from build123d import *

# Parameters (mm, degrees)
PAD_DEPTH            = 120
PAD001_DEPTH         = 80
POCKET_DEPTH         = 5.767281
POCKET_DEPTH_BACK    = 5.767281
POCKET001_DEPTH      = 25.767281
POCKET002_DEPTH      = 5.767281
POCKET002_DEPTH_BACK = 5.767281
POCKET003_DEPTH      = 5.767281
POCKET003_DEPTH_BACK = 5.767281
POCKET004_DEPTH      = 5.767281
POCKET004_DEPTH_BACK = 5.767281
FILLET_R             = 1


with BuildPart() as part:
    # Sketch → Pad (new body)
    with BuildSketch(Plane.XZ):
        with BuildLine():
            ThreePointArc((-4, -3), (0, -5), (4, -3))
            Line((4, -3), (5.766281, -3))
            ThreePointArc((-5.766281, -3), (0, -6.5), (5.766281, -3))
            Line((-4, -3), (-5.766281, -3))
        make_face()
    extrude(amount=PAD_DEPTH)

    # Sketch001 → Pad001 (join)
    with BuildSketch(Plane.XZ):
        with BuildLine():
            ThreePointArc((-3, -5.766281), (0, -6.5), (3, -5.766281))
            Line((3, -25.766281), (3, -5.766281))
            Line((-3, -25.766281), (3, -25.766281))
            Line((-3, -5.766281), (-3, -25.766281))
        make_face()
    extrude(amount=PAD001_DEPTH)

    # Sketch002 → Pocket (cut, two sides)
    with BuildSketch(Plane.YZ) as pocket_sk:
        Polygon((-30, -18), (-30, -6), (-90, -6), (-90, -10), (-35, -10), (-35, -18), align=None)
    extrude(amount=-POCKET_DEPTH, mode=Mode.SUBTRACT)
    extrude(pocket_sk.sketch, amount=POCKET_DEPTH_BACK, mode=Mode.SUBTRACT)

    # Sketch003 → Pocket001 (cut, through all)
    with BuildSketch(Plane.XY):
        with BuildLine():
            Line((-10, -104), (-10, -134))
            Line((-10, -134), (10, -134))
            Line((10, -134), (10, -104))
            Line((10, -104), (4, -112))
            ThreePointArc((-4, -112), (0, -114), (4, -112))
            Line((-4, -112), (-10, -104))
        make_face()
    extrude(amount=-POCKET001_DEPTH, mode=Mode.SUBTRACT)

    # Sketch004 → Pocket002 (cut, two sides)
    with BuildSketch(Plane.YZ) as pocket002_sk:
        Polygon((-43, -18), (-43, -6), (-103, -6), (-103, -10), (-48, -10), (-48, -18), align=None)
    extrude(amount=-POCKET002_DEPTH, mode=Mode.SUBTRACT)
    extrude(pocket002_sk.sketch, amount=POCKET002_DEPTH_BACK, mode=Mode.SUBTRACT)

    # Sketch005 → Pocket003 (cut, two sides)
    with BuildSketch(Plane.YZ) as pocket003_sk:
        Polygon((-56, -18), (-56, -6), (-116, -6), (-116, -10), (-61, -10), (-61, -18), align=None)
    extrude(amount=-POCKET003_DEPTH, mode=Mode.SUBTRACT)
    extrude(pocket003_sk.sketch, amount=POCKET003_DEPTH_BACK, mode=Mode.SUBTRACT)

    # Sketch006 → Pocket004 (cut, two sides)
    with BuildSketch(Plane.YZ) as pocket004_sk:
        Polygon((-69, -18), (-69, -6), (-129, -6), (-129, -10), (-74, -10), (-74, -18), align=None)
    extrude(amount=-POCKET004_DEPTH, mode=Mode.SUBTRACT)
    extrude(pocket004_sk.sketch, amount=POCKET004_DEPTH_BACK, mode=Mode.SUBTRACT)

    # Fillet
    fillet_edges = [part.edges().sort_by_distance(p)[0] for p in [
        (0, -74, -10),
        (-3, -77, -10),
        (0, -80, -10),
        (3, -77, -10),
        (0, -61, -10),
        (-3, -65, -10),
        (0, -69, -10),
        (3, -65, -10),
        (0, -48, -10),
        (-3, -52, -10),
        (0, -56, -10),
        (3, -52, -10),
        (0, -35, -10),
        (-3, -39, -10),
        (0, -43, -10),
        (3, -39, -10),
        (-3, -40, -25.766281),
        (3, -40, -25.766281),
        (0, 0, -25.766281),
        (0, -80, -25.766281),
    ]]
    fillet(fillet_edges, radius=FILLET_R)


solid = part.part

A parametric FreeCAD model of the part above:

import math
import FreeCAD as App
import Part
import Sketcher

V = App.Vector


def edges_at(feature, points):
    """Names of the edges that pass closest to the given points."""
    edges = feature.Shape.Edges
    near = lambda p: min(range(len(edges)), key=lambda i: edges[i].distToShape(Part.Vertex(*p))[0])
    return sorted({f"Edge{near(p) + 1}" for p in points})


def add_polygon(sketch, points):
    """Adds a closed chain of lines whose ends are joined by coincident constraints."""
    first, n = sketch.GeometryCount, len(points)
    for a, b in zip(points, points[1:] + points[:1]):
        sketch.addGeometry(Part.LineSegment(App.Vector(*a, 0), App.Vector(*b, 0)), False)
    for i in range(n):
        sketch.addConstraint(Sketcher.Constraint("Coincident", first + i, 2, first + (i + 1) % n, 1))

doc = App.newDocument("Part")
params = doc.addObject("Spreadsheet::Sheet", "Params")
for row, (alias, value) in enumerate([
    ("sketch1_radius", "5 mm"),
    ("sketch1_radius2", "6.5 mm"),
    ("pad1_length", "120 mm"),
    ("sketch2_width", "6 mm"),
    ("sketch2_height", "20 mm"),
    ("pad2_length", "80 mm"),
    ("sketch3_width", "60 mm"),
    ("sketch3_width2", "55 mm"),
    ("sketch3_height", "12 mm"),
    ("sketch3_height2", "4 mm"),
    ("sketch4_radius", "5 mm"),
    ("sketch4_width", "20 mm"),
    ("sketch4_height", "30 mm"),
    ("sketch4_length", "10 mm"),
    ("sketch5_width", "60 mm"),
    ("sketch5_width2", "55 mm"),
    ("sketch5_height", "12 mm"),
    ("sketch5_height2", "4 mm"),
    ("sketch6_width", "60 mm"),
    ("sketch6_width2", "55 mm"),
    ("sketch6_height", "12 mm"),
    ("sketch6_height2", "4 mm"),
    ("sketch7_width", "60 mm"),
    ("sketch7_width2", "55 mm"),
    ("sketch7_height", "12 mm"),
    ("sketch7_height2", "4 mm"),
    ("fillet_radius", "1 mm"),
], start=1):
    params.set(f"A{row}", alias)
    params.set(f"B{row}", "=" + value)
    params.setAlias(f"B{row}", alias)

body = doc.addObject("PartDesign::Body", "Body")

# Sketch on XZ plane
sketch1 = body.newObject("Sketcher::SketchObject", "Sketch")
sketch1.AttachmentSupport = (doc.getObject("XZ_Plane"), [""])
sketch1.MapMode = "FlatFace"
sketch1.addGeometry([
    Part.ArcOfCircle(Part.Circle(V(0, 0, 0), V(0, 0, 1), 5), math.radians(-143), math.radians(-37)),
    Part.LineSegment(V(-4, -3, 0), V(-5.8, -3, 0)),
    Part.ArcOfCircle(Part.Circle(V(0, 0, 0), V(0, 0, 1), 6.5), math.radians(-153), math.radians(-27)),
    Part.LineSegment(V(5.8, -3, 0), V(4, -3, 0)),
], False)
sketch1.addConstraint([
    Sketcher.Constraint("Coincident", 0, 1, 1, 1),
    Sketcher.Constraint("Coincident", 1, 2, 2, 1),
    Sketcher.Constraint("Coincident", 2, 2, 3, 1),
    Sketcher.Constraint("Coincident", 3, 2, 0, 2),
    Sketcher.Constraint("Horizontal", 1),
    Sketcher.Constraint("Horizontal", 3),
    Sketcher.Constraint("Coincident", 0, 3, -1, 1),
    Sketcher.Constraint("Coincident", 2, 3, -1, 1),
    Sketcher.Constraint("Horizontal", 1, 2, 2, 2),
    Sketcher.Constraint("Radius", 0, 5.0),
    Sketcher.Constraint("Radius", 2, 6.5),
    Sketcher.Constraint("DistanceX", 0, 1, -1, 1, 4.0),
])
sketch1.setExpression("Constraints[9]", "Params.sketch1_radius")
sketch1.setExpression("Constraints[10]", "Params.sketch1_radius2")
pad1 = body.newObject("PartDesign::Pad", "Pad")
pad1.Profile = sketch1
pad1.setExpression("Length", "Params.pad1_length")

# Sketch on XZ plane
sketch2 = body.newObject("Sketcher::SketchObject", "Sketch001")
sketch2.AttachmentSupport = (doc.getObject("XZ_Plane"), [""])
sketch2.MapMode = "FlatFace"
sketch2.addGeometry([
    Part.ArcOfCircle(Part.Circle(V(0, 0, 0), V(0, 0, 1), 6), math.radians(-117), math.radians(-63)),
    Part.LineSegment(V(-3, -6, 0), V(-3, -26, 0)),
    Part.LineSegment(V(-3, -26, 0), V(3, -26, 0)),
    Part.LineSegment(V(3, -26, 0), V(3, -6, 0)),
], False)
sketch2.addConstraint([
    Sketcher.Constraint("Coincident", 0, 1, 1, 1),
    Sketcher.Constraint("Coincident", 1, 2, 2, 1),
    Sketcher.Constraint("Coincident", 2, 2, 3, 1),
    Sketcher.Constraint("Coincident", 3, 2, 0, 2),
    Sketcher.Constraint("Vertical", 1),
    Sketcher.Constraint("Horizontal", 2),
    Sketcher.Constraint("Vertical", 3),
    Sketcher.Constraint("Coincident", 0, 3, -1, 1),
    Sketcher.Constraint("Horizontal", 0, 1, 3, 2),
    Sketcher.Constraint("DistanceX", 2, 1, 2, 2, 6.0),
    Sketcher.Constraint("DistanceY", 1, 2, 1, 1, 20.0),
    Sketcher.Constraint("Radius", 0, 6.499998),
])
sketch2.setExpression("Constraints[9]", "Params.sketch2_width")
sketch2.setExpression("Constraints[10]", "Params.sketch2_height")
pad2 = body.newObject("PartDesign::Pad", "Pad001")
pad2.Profile = sketch2
pad2.setExpression("Length", "Params.pad2_length")

# Sketch on YZ plane
sketch3 = body.newObject("Sketcher::SketchObject", "Sketch002")
sketch3.AttachmentSupport = (doc.getObject("YZ_Plane"), [""])
sketch3.MapMode = "FlatFace"
add_polygon(sketch3, [(-30, -18), (-30, -6), (-90, -6), (-90, -10), (-35, -10), (-35, -18)])  # lines 0-5
sketch3.addConstraint([
    Sketcher.Constraint("Vertical", 0),
    Sketcher.Constraint("Horizontal", 1),
    Sketcher.Constraint("Vertical", 2),
    Sketcher.Constraint("Horizontal", 3),
    Sketcher.Constraint("Vertical", 4),
    Sketcher.Constraint("Horizontal", 5),
    Sketcher.Constraint("DistanceX", 1, 2, 1, 1, 60.0),
    Sketcher.Constraint("DistanceX", 3, 1, 3, 2, 55.0),
    Sketcher.Constraint("DistanceY", 0, 1, 0, 2, 12.0),
    Sketcher.Constraint("DistanceY", 2, 2, 2, 1, 4.0),
    Sketcher.Constraint("DistanceX", 0, 2, -1, 1, 30.0),
    Sketcher.Constraint("DistanceY", 0, 2, -1, 1, 6.0),
])
sketch3.setExpression("Constraints[12]", "Params.sketch3_width")
sketch3.setExpression("Constraints[13]", "Params.sketch3_width2")
sketch3.setExpression("Constraints[14]", "Params.sketch3_height")
sketch3.setExpression("Constraints[15]", "Params.sketch3_height2")
pocket1 = body.newObject("PartDesign::Pocket", "Pocket")
pocket1.Profile = sketch3
pocket1.Type = "ThroughAll"
pocket1.Midplane = True

# Sketch on XY plane
sketch4 = body.newObject("Sketcher::SketchObject", "Sketch003")
sketch4.AttachmentSupport = (doc.getObject("XY_Plane"), [""])
sketch4.MapMode = "FlatFace"
sketch4.addGeometry([
    Part.LineSegment(V(-10, -104, 0), V(-10, -134, 0)),  # 0
    Part.LineSegment(V(-10, -134, 0), V(10, -134, 0)),  # 1
    Part.LineSegment(V(10, -134, 0), V(10, -104, 0)),  # 2
    Part.LineSegment(V(10, -104, 0), V(4, -112, 0)),  # 3
    Part.ArcOfCircle(Part.Circle(V(0, -109, 0), V(0, 0, 1), 5), math.radians(-143), math.radians(-37)),  # 4
    Part.LineSegment(V(-4, -112, 0), V(-10, -104, 0)),  # 5
], False)
sketch4.addConstraint([
    Sketcher.Constraint("Coincident", 0, 2, 1, 1),
    Sketcher.Constraint("Coincident", 1, 2, 2, 1),
    Sketcher.Constraint("Coincident", 2, 2, 3, 1),
    Sketcher.Constraint("Tangent", 3, 2, 4, 2),
    Sketcher.Constraint("Tangent", 4, 1, 5, 1),
    Sketcher.Constraint("Coincident", 5, 2, 0, 1),
    Sketcher.Constraint("Vertical", 0),
    Sketcher.Constraint("Horizontal", 1),
    Sketcher.Constraint("Vertical", 2),
    Sketcher.Constraint("Symmetric", 3, 2, 4, 1, -2),
    Sketcher.Constraint("Horizontal", 2, 2, 5, 2),
    Sketcher.Constraint("Radius", 4, 5.0),
    Sketcher.Constraint("DistanceX", 1, 1, 1, 2, 20.0),
    Sketcher.Constraint("DistanceY", 0, 2, 0, 1, 30.0),
    Sketcher.Constraint("Distance", 3, 10.0),
    Sketcher.Constraint("DistanceY", 4, 3, -1, 1, 109.0),
])
sketch4.setExpression("Constraints[11]", "Params.sketch4_radius")
sketch4.setExpression("Constraints[12]", "Params.sketch4_width")
sketch4.setExpression("Constraints[13]", "Params.sketch4_height")
sketch4.setExpression("Constraints[14]", "Params.sketch4_length")
pocket2 = body.newObject("PartDesign::Pocket", "Pocket001")
pocket2.Profile = sketch4
pocket2.Type = "ThroughAll"

# Sketch on YZ plane
sketch5 = body.newObject("Sketcher::SketchObject", "Sketch004")
sketch5.AttachmentSupport = (doc.getObject("YZ_Plane"), [""])
sketch5.MapMode = "FlatFace"
add_polygon(sketch5, [(-43, -18), (-43, -6), (-103, -6), (-103, -10), (-48, -10), (-48, -18)])  # lines 0-5
sketch5.addConstraint([
    Sketcher.Constraint("Vertical", 0),
    Sketcher.Constraint("Horizontal", 1),
    Sketcher.Constraint("Vertical", 2),
    Sketcher.Constraint("Horizontal", 3),
    Sketcher.Constraint("Vertical", 4),
    Sketcher.Constraint("Horizontal", 5),
    Sketcher.Constraint("DistanceX", 1, 2, 1, 1, 60.0),
    Sketcher.Constraint("DistanceX", 3, 1, 3, 2, 55.0),
    Sketcher.Constraint("DistanceY", 0, 1, 0, 2, 12.0),
    Sketcher.Constraint("DistanceY", 2, 2, 2, 1, 4.0),
    Sketcher.Constraint("DistanceX", 0, 2, -1, 1, 43.0),
    Sketcher.Constraint("DistanceY", 0, 2, -1, 1, 6.0),
])
sketch5.setExpression("Constraints[12]", "Params.sketch5_width")
sketch5.setExpression("Constraints[13]", "Params.sketch5_width2")
sketch5.setExpression("Constraints[14]", "Params.sketch5_height")
sketch5.setExpression("Constraints[15]", "Params.sketch5_height2")
pocket3 = body.newObject("PartDesign::Pocket", "Pocket002")
pocket3.Profile = sketch5
pocket3.Type = "ThroughAll"
pocket3.Midplane = True

# Sketch on YZ plane
sketch6 = body.newObject("Sketcher::SketchObject", "Sketch005")
sketch6.AttachmentSupport = (doc.getObject("YZ_Plane"), [""])
sketch6.MapMode = "FlatFace"
add_polygon(sketch6, [(-56, -18), (-56, -6), (-116, -6), (-116, -10), (-61, -10), (-61, -18)])  # lines 0-5
sketch6.addConstraint([
    Sketcher.Constraint("Vertical", 0),
    Sketcher.Constraint("Horizontal", 1),
    Sketcher.Constraint("Vertical", 2),
    Sketcher.Constraint("Horizontal", 3),
    Sketcher.Constraint("Vertical", 4),
    Sketcher.Constraint("Horizontal", 5),
    Sketcher.Constraint("DistanceX", 1, 2, 1, 1, 60.0),
    Sketcher.Constraint("DistanceX", 3, 1, 3, 2, 55.0),
    Sketcher.Constraint("DistanceY", 0, 1, 0, 2, 12.0),
    Sketcher.Constraint("DistanceY", 2, 2, 2, 1, 4.0),
    Sketcher.Constraint("DistanceX", 0, 2, -1, 1, 56.0),
    Sketcher.Constraint("DistanceY", 0, 2, -1, 1, 6.0),
])
sketch6.setExpression("Constraints[12]", "Params.sketch6_width")
sketch6.setExpression("Constraints[13]", "Params.sketch6_width2")
sketch6.setExpression("Constraints[14]", "Params.sketch6_height")
sketch6.setExpression("Constraints[15]", "Params.sketch6_height2")
pocket4 = body.newObject("PartDesign::Pocket", "Pocket003")
pocket4.Profile = sketch6
pocket4.Type = "ThroughAll"
pocket4.Midplane = True

# Sketch on YZ plane
sketch7 = body.newObject("Sketcher::SketchObject", "Sketch006")
sketch7.AttachmentSupport = (doc.getObject("YZ_Plane"), [""])
sketch7.MapMode = "FlatFace"
add_polygon(sketch7, [(-69, -18), (-69, -6), (-129, -6), (-129, -10), (-74, -10), (-74, -18)])  # lines 0-5
sketch7.addConstraint([
    Sketcher.Constraint("Vertical", 0),
    Sketcher.Constraint("Horizontal", 1),
    Sketcher.Constraint("Vertical", 2),
    Sketcher.Constraint("Horizontal", 3),
    Sketcher.Constraint("Vertical", 4),
    Sketcher.Constraint("Horizontal", 5),
    Sketcher.Constraint("DistanceX", 1, 2, 1, 1, 60.0),
    Sketcher.Constraint("DistanceX", 3, 1, 3, 2, 55.0),
    Sketcher.Constraint("DistanceY", 0, 1, 0, 2, 12.0),
    Sketcher.Constraint("DistanceY", 2, 2, 2, 1, 4.0),
    Sketcher.Constraint("DistanceX", 0, 2, -1, 1, 69.0),
    Sketcher.Constraint("DistanceY", 0, 2, -1, 1, 6.0),
])
sketch7.setExpression("Constraints[12]", "Params.sketch7_width")
sketch7.setExpression("Constraints[13]", "Params.sketch7_width2")
sketch7.setExpression("Constraints[14]", "Params.sketch7_height")
sketch7.setExpression("Constraints[15]", "Params.sketch7_height2")
pocket5 = body.newObject("PartDesign::Pocket", "Pocket004")
pocket5.Profile = sketch7
pocket5.Type = "ThroughAll"
pocket5.Midplane = True
doc.recompute()

fillet = body.newObject("PartDesign::Fillet", "Fillet")
fillet.Base = (pocket5, edges_at(pocket5, [
    (0, -74, -10),
    (-3, -77, -10),
    (0, -80, -10),
    (3, -77, -10),
    (0, -61, -10),
    (-3, -65, -10),
    (0, -69, -10),
    (3, -65, -10),
    (0, -48, -10),
    (-3, -52, -10),
    (0, -56, -10),
    (3, -52, -10),
    (0, -35, -10),
    (-3, -39, -10),
    (0, -43, -10),
    (3, -39, -10),
    (-3, -40, -25.766),
    (3, -40, -25.766),
    (0, 0, -25.766),
    (0, -80, -25.766),
]))
fillet.setExpression("Radius", "Params.fillet_radius")

doc.recompute()
